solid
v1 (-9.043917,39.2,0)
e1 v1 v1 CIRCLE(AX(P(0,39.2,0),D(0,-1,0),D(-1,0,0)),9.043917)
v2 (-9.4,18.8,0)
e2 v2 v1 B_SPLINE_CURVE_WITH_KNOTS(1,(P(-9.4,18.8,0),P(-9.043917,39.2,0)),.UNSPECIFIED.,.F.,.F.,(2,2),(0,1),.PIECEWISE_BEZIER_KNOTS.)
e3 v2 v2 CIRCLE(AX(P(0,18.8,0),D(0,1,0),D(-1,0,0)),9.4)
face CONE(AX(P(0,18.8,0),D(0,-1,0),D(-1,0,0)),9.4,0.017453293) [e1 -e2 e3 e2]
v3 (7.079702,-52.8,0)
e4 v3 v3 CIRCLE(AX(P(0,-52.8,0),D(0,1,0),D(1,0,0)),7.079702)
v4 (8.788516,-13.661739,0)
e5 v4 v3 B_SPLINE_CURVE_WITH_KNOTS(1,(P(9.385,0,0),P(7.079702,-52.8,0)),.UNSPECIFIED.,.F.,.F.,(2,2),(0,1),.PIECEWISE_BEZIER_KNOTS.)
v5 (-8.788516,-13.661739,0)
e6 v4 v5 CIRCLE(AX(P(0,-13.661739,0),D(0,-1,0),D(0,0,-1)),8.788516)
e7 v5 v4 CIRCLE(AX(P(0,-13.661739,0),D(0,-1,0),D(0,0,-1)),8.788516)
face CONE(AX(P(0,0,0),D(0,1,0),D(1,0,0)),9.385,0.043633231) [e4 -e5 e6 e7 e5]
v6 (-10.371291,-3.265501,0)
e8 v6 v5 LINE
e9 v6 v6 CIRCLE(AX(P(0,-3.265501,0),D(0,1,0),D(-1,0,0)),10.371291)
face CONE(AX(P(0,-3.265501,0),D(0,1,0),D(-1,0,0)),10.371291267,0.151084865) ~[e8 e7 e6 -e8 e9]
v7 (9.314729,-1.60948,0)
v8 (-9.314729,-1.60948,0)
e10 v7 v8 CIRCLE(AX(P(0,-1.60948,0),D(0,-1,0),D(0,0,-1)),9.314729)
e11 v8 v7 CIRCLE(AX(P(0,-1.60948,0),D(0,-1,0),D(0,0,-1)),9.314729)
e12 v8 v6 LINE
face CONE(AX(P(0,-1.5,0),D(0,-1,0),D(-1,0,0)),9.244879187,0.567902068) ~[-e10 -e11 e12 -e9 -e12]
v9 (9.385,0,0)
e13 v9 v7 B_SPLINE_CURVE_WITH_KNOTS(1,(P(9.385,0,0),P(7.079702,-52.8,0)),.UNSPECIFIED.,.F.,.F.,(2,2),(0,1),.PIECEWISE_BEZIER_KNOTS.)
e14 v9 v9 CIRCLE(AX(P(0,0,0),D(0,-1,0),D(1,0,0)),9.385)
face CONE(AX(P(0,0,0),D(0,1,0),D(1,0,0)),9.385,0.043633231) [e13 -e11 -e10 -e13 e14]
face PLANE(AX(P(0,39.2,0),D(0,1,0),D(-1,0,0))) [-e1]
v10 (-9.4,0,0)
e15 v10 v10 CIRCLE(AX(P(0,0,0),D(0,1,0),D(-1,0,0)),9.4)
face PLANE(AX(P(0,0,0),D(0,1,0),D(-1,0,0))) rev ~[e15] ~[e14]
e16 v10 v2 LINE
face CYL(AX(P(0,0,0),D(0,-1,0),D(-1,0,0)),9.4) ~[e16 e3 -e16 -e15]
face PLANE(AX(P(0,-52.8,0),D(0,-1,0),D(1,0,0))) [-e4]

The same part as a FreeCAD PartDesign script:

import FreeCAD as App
import Part
import Sketcher
from FreeCAD import Vector


def add_polygon(sketch, points):
    """Adds a closed chain of lines whose ends are joined by coincident constraints."""
    first, n = sketch.GeometryCount, len(points)
    for a, b in zip(points, points[1:] + points[:1]):
        sketch.addGeometry(Part.LineSegment(App.Vector(*a, 0), App.Vector(*b, 0)), False)
    for i in range(n):
        sketch.addConstraint(Sketcher.Constraint("Coincident", first + i, 2, first + (i + 1) % n, 1))

doc = App.newDocument("Part")
body = doc.addObject("PartDesign::Body", "Body")

# Sketch on XZ plane
sketch1 = doc.addObject("Sketcher::SketchObject", "Sketch")
body.addObject(sketch1)
sketch1.AttachmentSupport = (doc.XZ_Plane, [""])
sketch1.MapMode = "FlatFace"
sketch1.addGeometry(Part.Circle(Vector(0, 0, 0), Vector(0, 0, 1), 9.385), False)
sketch1.addConstraint([
    Sketcher.Constraint("Coincident", 0, 3, -1, 1),
    Sketcher.Constraint("Diameter", 0, 18.77),
])
pad1 = doc.addObject("PartDesign::Pad", "Pad")
body.addObject(pad1)
pad1.Profile = sketch1
pad1.Length = 52.8
pad1.TaperAngle = -2.5

# Sketch on XZ plane
sketch2 = doc.addObject("Sketcher::SketchObject", "Sketch001")
body.addObject(sketch2)
sketch2.AttachmentSupport = (doc.XZ_Plane, [""])
sketch2.MapMode = "FlatFace"
sketch2.addGeometry(Part.Circle(Vector(0, 0, 0), Vector(0, 0, 1), 9.4), False)
sketch2.addConstraint([
    Sketcher.Constraint("Coincident", 0, 3, -1, 1),
    Sketcher.Constraint("Diameter", 0, 18.8),
])
pad2 = doc.addObject("PartDesign::Pad", "Pad001")
body.addObject(pad2)
pad2.Profile = sketch2
pad2.Length = 18.8
pad2.Reversed = True

# Sketch on XZ plane
sketch3 = doc.addObject("Sketcher::SketchObject", "Sketch002")
body.addObject(sketch3)
sketch3.AttachmentSupport = (doc.XZ_Plane, [""])
sketch3.MapMode = "FlatFace"
sketch3.AttachmentOffset = App.Placement(Vector(0, 0, -18.8), App.Rotation())
sketch3.addGeometry(Part.Circle(Vector(0, 0, 0), Vector(0, 0, 1), 9.4), False)
sketch3.addConstraint([
    Sketcher.Constraint("Coincident", 0, 3, -1, 1),
    Sketcher.Constraint("Diameter", 0, 18.8),
])
pad3 = doc.addObject("PartDesign::Pad", "Pad002")
body.addObject(pad3)
pad3.Profile = sketch3
pad3.Length = 20.4
pad3.Reversed = True
pad3.TaperAngle = -1

# Sketch on XY plane
sketch4 = doc.addObject("Sketcher::SketchObject", "Sketch003")
body.addObject(sketch4)
sketch4.AttachmentSupport = (doc.XY_Plane, [""])
sketch4.MapMode = "FlatFace"
add_polygon(sketch4, [(-8.708295, -14.188659), (-9.244879, -1.5), (-10.371291, -3.265501)])  # lines 0-2
sketch4.addConstraint([
    Sketcher.Constraint("Distance", 0, 12.7),
    Sketcher.Constraint("DistanceY", 0, 2, -1, 1, 1.5),
    Sketcher.Constraint("DistanceY", 1, 2, -1, 1, 3.265501),
    Sketcher.Constraint("Distance", 1, 2.09423),
    Sketcher.Constraint("DistanceX", 0, 2, -1, 1, 9.244879),
    Sketcher.Constraint("DistanceY", 2, 2, -1, 1, 14.188659),
])
revolution = doc.addObject("PartDesign::Revolution", "Revolution")
body.addObject(revolution)
revolution.Profile = sketch4
revolution.ReferenceAxis = (sketch4, ["V_Axis"])
revolution.Angle = 360

doc.recompute()
